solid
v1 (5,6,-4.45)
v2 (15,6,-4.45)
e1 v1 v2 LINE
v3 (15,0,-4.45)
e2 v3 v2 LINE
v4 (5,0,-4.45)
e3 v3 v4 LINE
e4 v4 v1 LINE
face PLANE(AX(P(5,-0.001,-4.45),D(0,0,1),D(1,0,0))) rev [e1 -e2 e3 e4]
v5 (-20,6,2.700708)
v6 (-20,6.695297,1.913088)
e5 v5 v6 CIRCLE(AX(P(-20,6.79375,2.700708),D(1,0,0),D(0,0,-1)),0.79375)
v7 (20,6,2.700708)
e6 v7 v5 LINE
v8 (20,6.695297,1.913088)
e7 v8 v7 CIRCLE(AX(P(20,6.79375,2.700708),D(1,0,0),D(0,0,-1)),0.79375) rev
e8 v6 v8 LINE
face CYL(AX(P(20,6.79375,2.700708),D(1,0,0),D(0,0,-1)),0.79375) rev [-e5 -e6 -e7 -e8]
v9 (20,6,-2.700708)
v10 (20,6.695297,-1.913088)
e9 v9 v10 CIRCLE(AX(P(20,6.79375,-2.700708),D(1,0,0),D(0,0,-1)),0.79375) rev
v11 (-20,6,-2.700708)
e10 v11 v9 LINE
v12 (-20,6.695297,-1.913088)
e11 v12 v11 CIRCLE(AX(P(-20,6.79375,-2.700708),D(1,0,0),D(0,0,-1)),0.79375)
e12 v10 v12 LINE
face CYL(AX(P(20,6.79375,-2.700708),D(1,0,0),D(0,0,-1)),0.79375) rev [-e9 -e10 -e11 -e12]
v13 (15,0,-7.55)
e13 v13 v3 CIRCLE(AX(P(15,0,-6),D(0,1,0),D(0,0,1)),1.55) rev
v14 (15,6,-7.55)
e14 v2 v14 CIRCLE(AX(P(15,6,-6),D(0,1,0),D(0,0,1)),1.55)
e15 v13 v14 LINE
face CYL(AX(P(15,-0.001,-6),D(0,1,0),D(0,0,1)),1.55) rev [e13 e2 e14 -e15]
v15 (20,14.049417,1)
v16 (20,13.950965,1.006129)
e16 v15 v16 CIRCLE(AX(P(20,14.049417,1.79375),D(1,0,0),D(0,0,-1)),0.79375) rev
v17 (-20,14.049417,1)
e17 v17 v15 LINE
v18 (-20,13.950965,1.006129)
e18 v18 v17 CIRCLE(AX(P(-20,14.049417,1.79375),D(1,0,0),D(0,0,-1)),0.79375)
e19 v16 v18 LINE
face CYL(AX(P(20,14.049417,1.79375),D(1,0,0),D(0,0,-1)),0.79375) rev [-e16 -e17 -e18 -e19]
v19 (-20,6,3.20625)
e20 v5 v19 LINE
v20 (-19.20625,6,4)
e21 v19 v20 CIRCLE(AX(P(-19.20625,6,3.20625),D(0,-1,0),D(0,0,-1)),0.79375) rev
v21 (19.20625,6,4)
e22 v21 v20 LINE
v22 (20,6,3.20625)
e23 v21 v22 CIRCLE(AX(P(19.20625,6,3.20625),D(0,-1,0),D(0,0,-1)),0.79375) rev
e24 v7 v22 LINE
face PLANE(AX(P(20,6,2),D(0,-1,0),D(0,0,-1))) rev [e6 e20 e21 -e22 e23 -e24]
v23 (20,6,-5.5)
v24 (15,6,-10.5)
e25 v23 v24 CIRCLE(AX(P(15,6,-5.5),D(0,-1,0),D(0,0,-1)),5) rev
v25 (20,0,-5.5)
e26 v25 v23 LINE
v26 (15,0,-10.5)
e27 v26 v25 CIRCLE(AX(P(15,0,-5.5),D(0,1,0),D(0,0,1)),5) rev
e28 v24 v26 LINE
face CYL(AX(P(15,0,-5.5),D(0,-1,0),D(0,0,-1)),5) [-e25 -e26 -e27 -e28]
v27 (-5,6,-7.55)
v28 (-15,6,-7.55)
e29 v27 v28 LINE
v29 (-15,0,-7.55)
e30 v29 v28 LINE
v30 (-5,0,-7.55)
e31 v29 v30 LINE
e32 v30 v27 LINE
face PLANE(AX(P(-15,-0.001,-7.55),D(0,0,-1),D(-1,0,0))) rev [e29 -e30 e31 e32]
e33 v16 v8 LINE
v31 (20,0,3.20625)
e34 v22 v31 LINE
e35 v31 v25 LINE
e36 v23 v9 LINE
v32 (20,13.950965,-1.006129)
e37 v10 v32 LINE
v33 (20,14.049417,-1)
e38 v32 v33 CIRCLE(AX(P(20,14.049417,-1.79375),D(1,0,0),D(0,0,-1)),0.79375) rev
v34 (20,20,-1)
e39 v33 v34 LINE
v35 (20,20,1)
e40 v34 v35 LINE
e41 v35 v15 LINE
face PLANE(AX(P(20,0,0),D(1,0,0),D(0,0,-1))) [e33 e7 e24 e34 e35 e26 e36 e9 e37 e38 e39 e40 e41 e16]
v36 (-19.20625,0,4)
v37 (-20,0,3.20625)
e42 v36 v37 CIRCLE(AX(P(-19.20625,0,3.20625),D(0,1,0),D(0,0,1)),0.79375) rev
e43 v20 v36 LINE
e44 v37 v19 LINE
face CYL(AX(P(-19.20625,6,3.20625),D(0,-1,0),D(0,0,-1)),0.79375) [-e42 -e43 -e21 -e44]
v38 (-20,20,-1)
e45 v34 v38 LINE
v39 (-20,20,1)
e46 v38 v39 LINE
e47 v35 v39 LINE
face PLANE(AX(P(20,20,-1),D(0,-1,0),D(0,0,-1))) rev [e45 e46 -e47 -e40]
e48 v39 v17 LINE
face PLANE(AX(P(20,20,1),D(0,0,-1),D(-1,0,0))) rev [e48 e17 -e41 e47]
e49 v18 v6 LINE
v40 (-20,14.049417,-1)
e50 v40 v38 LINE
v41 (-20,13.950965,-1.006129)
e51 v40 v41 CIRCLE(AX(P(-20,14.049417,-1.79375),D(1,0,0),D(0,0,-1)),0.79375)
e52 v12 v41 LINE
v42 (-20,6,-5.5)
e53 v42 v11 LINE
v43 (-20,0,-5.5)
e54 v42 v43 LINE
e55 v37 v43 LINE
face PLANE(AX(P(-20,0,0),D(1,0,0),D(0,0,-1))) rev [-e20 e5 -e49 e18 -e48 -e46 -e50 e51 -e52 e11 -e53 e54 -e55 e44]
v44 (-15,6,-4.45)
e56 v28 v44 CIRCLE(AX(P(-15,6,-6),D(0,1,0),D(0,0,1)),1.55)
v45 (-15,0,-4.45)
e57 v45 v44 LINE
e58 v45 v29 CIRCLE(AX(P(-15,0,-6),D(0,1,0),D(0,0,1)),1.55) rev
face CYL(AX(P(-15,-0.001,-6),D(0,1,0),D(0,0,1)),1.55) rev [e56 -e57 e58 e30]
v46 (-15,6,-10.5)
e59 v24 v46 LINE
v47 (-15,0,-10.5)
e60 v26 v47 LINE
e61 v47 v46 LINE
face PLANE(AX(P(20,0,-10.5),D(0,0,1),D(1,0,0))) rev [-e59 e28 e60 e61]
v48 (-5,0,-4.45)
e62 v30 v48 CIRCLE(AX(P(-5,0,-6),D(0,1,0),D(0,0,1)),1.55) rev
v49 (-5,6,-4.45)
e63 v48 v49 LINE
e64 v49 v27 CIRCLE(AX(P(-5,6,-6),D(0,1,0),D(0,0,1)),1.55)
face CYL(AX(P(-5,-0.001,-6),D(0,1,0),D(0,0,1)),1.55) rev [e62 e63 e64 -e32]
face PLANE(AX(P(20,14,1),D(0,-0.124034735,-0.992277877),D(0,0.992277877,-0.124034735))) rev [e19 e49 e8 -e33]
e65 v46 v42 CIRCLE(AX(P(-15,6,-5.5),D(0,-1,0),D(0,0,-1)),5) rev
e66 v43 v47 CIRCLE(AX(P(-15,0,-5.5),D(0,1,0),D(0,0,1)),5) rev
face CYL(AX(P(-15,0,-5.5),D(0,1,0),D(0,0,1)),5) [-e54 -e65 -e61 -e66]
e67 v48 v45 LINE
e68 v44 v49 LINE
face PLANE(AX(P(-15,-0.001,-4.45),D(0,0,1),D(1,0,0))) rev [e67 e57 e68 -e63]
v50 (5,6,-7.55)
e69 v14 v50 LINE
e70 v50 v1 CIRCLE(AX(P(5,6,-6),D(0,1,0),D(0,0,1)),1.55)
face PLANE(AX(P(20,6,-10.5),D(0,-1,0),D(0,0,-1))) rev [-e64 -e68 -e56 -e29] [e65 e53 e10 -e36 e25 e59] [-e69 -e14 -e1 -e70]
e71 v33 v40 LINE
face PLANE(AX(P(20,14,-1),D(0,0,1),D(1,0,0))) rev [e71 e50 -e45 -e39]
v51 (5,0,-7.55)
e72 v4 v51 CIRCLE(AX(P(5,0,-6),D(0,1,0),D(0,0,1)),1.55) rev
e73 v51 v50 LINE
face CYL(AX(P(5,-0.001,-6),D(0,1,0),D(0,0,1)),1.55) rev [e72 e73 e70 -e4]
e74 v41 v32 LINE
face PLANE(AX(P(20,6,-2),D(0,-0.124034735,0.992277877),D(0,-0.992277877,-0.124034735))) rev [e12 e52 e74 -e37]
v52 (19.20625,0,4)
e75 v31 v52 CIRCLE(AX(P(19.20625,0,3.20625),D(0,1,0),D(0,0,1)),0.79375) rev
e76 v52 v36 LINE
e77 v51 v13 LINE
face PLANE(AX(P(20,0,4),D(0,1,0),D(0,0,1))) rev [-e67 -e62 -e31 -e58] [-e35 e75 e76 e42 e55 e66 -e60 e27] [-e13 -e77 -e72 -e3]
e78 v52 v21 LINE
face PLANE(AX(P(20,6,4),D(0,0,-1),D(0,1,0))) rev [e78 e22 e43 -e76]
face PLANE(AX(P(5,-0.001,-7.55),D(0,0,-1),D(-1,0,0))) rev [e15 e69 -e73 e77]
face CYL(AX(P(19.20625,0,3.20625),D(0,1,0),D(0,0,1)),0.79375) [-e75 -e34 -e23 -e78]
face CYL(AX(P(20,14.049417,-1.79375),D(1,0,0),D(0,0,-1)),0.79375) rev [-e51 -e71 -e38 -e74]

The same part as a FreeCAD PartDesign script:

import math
import FreeCAD as App
import Part
import Sketcher

V = App.Vector


def edges_at(feature, points):
    """Names of the edges that pass closest to the given points."""
    edges = feature.Shape.Edges
    near = lambda p: min(range(len(edges)), key=lambda i: edges[i].distToShape(Part.Vertex(*p))[0])
    return sorted({f"Edge{near(p) + 1}" for p in points})


def add_polygon(sketch, points):
    """Adds a closed chain of lines whose ends are joined by coincident constraints."""
    first, n = sketch.GeometryCount, len(points)
    for a, b in zip(points, points[1:] + points[:1]):
        sketch.addGeometry(Part.LineSegment(App.Vector(*a, 0), App.Vector(*b, 0)), False)
    for i in range(n):
        sketch.addConstraint(Sketcher.Constraint("Coincident", first + i, 2, first + (i + 1) % n, 1))

doc = App.newDocument("Part")
body = doc.addObject("PartDesign::Body", "Body")

# Sketch on YZ plane
sketch1 = body.newObject("Sketcher::SketchObject", "Sketch")
sketch1.AttachmentSupport = (doc.getObject("YZ_Plane"), [""])
sketch1.MapMode = "FlatFace"
add_polygon(sketch1, [(0, 4), (0, -10.5), (6, -10.5), (6, -2), (14, -1), (20, -1), (20, 1), (14, 1), (6, 2), (6, 4)])  # lines 0-9
sketch1.addConstraint([
    Sketcher.Constraint("Vertical", 0),
    Sketcher.Constraint("Horizontal", 1),
    Sketcher.Constraint("Vertical", 2),
    Sketcher.Constraint("Horizontal", 4),
    Sketcher.Constraint("Vertical", 5),
    Sketcher.Constraint("Horizontal", 6),
    Sketcher.Constraint("Vertical", 8),
    Sketcher.Constraint("Horizontal", 9),
    Sketcher.Constraint("Symmetric", 3, 2, 6, 2, -1),
    Sketcher.Constraint("Symmetric", 2, 2, 7, 2, -1),
    Sketcher.Constraint("PointOnObject", 0, 2, -2),
    Sketcher.Constraint("Equal", 1, 4),
    Sketcher.Constraint("Equal", 5, 8),
    Sketcher.Constraint("DistanceX", 1, 1, 1, 2, 6.0),
    Sketcher.Constraint("DistanceY", 5, 1, 5, 2, 2.0),
    Sketcher.Constraint("DistanceY", 0, 2, 0, 1, 14.5),
    Sketcher.Constraint("DistanceY", 2, 1, 2, 2, 8.5),
    Sketcher.Constraint("DistanceX", -1, 1, 3, 2, 14.0),
])
pad1 = body.newObject("PartDesign::Pad", "Pad")
pad1.Profile = sketch1
pad1.Length = 40
pad1.Midplane = True

# Sketch on XZ plane
sketch2 = body.newObject("Sketcher::SketchObject", "Sketch001")
sketch2.AttachmentSupport = (doc.getObject("XZ_Plane"), [""])
sketch2.MapMode = "FlatFace"
sketch2.AttachmentOffset = App.Placement(V(0, 0, -6), App.Rotation())
sketch2.addGeometry([
    Part.LineSegment(V(-5, -7.55, 0), V(-15, -7.55, 0)),
    Part.ArcOfCircle(Part.Circle(V(-15, -6, 0), V(0, 0, 1), 1.55), math.radians(90), math.radians(270)),
    Part.LineSegment(V(-15, -4.45, 0), V(-5, -4.45, 0)),
    Part.ArcOfCircle(Part.Circle(V(-5, -6, 0), V(0, 0, 1), 1.55), math.radians(-90), math.radians(90)),
], False)
sketch2.addConstraint([
    Sketcher.Constraint("Tangent", 0, 2, 1, 2),
    Sketcher.Constraint("Tangent", 1, 1, 2, 1),
    Sketcher.Constraint("Tangent", 2, 2, 3, 2),
    Sketcher.Constraint("Tangent", 3, 1, 0, 1),
    Sketcher.Constraint("Horizontal", 0),
    Sketcher.Constraint("Horizontal", 2),
    Sketcher.Constraint("DistanceX", 0, 2, 0, 1, 10.0),
    Sketcher.Constraint("Radius", 1, 1.55),
    Sketcher.Constraint("DistanceX", 1, 3, -1, 1, 15.0),
    Sketcher.Constraint("DistanceY", 1, 3, -1, 1, 6.0),
])
pocket1 = body.newObject("PartDesign::Pocket", "Pocket")
pocket1.Profile = sketch2
pocket1.Type = "UpToFirst"
pocket1.Reversed = True

# Sketch on XZ plane
sketch3 = body.newObject("Sketcher::SketchObject", "Sketch002")
sketch3.AttachmentSupport = (doc.getObject("XZ_Plane"), [""])
sketch3.MapMode = "FlatFace"
sketch3.AttachmentOffset = App.Placement(V(0, 0, -6), App.Rotation())
sketch3.addGeometry([
    Part.LineSegment(V(15, -7.55, 0), V(5, -7.55, 0)),
    Part.ArcOfCircle(Part.Circle(V(5, -6, 0), V(0, 0, 1), 1.55), math.radians(90), math.radians(270)),
    Part.LineSegment(V(5, -4.45, 0), V(15, -4.45, 0)),
    Part.ArcOfCircle(Part.Circle(V(15, -6, 0), V(0, 0, 1), 1.55), math.radians(-90), math.radians(90)),
], False)
sketch3.addConstraint([
    Sketcher.Constraint("Tangent", 0, 2, 1, 2),
    Sketcher.Constraint("Tangent", 1, 1, 2, 1),
    Sketcher.Constraint("Tangent", 2, 2, 3, 2),
    Sketcher.Constraint("Tangent", 3, 1, 0, 1),
    Sketcher.Constraint("Horizontal", 0),
    Sketcher.Constraint("Horizontal", 2),
    Sketcher.Constraint("DistanceX", 0, 2, 0, 1, 10.0),
    Sketcher.Constraint("Radius", 1, 1.55),
    Sketcher.Constraint("DistanceX", -1, 1, 1, 3, 5.0),
    Sketcher.Constraint("DistanceY", 1, 3, -1, 1, 6.0),
])
pocket2 = body.newObject("PartDesign::Pocket", "Pocket001")
pocket2.Profile = sketch3
pocket2.Type = "UpToFirst"
pocket2.Reversed = True
doc.recompute()

fillet = body.newObject("PartDesign::Fillet", "Fillet")
fillet.Base = (pocket2, edges_at(pocket2, [(20, 3, -10.5), (-20, 3, -10.5)]))
fillet.Radius = 5
doc.recompute()

fillet2 = body.newObject("PartDesign::Fillet", "Fillet001")
fillet2.Base = (fillet, edges_at(fillet, [
    (-20, 3, 4),
    (0, 6, 2),
    (0, 14, 1),
    (0, 14, -1),
    (0, 6, -2),
    (20, 3, 4),
]))
fillet2.Radius = 0.79375

doc.recompute()
